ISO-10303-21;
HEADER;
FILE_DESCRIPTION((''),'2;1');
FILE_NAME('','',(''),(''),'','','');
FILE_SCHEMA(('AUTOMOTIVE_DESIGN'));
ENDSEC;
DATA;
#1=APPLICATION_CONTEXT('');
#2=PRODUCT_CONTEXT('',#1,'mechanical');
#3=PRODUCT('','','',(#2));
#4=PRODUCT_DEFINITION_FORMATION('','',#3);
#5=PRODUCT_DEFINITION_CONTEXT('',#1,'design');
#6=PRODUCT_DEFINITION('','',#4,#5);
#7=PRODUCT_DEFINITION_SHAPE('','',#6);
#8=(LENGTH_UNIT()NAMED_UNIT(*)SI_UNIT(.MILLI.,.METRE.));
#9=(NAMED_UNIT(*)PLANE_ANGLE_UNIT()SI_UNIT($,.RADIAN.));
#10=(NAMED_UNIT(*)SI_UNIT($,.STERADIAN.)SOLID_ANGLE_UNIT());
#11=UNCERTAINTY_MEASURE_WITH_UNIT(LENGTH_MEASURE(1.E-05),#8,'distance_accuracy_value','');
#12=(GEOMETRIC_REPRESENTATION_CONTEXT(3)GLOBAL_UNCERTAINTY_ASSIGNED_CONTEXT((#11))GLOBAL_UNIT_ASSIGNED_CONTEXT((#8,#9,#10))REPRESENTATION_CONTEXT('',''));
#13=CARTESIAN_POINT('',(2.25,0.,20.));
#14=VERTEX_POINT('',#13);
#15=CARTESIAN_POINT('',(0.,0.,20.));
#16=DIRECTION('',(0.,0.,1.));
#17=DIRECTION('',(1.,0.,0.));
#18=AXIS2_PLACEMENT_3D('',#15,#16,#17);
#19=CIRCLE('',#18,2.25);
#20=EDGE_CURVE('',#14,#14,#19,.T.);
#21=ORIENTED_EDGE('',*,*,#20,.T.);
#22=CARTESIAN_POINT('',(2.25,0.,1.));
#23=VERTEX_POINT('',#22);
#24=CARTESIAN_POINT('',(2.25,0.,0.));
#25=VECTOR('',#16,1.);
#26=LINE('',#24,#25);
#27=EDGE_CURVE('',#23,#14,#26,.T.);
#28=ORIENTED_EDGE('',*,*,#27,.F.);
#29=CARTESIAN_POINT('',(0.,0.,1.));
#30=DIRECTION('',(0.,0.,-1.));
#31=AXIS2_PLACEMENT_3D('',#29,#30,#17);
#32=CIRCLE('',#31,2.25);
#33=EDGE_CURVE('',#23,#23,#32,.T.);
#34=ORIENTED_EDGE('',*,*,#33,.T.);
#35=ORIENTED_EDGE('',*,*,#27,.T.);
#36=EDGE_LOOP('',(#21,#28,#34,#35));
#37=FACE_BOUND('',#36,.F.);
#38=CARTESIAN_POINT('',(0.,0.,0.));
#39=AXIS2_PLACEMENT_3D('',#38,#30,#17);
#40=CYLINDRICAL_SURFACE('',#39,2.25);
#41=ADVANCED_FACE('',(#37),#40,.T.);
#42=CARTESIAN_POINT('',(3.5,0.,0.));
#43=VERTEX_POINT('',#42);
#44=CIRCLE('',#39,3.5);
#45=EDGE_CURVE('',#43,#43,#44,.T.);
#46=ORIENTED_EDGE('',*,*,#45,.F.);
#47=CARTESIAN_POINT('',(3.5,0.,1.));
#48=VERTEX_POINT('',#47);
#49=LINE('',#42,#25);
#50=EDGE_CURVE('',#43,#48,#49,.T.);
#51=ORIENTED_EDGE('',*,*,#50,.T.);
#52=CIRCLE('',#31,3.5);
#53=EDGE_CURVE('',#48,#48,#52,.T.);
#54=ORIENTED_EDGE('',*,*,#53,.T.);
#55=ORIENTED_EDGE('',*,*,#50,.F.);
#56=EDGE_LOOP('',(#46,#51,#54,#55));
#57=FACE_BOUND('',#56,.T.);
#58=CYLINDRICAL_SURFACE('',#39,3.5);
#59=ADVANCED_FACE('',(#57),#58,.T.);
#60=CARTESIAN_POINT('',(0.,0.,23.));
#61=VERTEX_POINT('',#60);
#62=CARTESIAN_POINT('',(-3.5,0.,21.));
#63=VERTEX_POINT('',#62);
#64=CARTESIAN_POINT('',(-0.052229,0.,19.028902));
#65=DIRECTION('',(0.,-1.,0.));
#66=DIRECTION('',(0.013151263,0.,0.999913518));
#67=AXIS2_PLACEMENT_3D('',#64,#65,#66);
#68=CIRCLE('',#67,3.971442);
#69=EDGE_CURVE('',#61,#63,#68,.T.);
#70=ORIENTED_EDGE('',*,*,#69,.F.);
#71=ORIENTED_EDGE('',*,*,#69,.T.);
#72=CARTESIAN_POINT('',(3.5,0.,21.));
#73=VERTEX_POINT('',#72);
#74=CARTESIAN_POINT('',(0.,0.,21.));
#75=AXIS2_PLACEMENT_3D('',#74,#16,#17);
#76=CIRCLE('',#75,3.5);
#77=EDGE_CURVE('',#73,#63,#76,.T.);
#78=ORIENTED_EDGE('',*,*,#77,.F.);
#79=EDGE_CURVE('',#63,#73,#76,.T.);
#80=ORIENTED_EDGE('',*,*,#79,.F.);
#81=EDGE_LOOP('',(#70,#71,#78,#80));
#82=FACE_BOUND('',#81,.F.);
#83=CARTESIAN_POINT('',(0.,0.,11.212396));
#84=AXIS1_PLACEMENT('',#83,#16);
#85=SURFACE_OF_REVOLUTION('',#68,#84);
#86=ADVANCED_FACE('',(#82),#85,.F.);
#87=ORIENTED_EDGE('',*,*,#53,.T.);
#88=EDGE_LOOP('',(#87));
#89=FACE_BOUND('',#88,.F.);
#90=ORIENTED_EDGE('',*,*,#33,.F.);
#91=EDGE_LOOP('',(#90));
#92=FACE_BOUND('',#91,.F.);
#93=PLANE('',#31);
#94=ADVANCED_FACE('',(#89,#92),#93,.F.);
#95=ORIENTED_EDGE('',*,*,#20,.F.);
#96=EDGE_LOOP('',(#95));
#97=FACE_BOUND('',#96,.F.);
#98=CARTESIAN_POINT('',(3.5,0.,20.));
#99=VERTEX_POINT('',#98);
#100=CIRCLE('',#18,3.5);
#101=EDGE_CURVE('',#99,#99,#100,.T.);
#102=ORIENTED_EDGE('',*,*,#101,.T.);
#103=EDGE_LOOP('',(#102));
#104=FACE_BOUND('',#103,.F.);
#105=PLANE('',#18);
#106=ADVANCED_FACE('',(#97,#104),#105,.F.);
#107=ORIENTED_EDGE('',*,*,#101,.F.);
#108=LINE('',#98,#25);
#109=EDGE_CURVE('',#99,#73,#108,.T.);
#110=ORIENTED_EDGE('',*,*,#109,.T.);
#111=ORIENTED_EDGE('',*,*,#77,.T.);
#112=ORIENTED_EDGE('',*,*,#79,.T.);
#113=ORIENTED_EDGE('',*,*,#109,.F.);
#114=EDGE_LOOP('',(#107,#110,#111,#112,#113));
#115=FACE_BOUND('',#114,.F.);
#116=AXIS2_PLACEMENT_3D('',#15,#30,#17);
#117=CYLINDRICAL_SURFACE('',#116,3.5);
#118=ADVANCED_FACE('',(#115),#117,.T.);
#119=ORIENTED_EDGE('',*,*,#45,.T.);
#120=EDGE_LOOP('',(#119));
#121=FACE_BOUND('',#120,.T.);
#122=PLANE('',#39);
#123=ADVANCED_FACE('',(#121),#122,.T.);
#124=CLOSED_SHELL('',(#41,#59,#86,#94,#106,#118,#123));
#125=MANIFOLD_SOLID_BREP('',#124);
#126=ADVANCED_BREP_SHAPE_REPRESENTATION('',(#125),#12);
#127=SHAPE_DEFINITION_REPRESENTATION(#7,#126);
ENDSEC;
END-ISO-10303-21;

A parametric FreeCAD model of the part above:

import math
import FreeCAD as App
import Part
import Sketcher

V = App.Vector
Q = App.Units.Quantity

doc = App.newDocument("Part")
body = doc.addObject("PartDesign::Body", "Body")

# Sketch on XY plane
sketch1 = doc.addObject("Sketcher::SketchObject", "Sketch")
body.addObject(sketch1)
sketch1.AttachmentSupport = (doc.XY_Plane, [""])
sketch1.MapMode = "FlatFace"
sketch1.addGeometry(Part.Circle(V(0, 0, 0), V(0, 0, 1), 2.25), False)
sketch1.addConstraint([
    Sketcher.Constraint("Coincident", 0, 3, -1, 1),
    Sketcher.Constraint("Diameter", 0, Q("4.5 mm")),
])
pad1 = doc.addObject("PartDesign::Pad", "Pad")
body.addObject(pad1)
pad1.Profile = sketch1
pad1.Length = 20

# Sketch on XY plane
sketch2 = doc.addObject("Sketcher::SketchObject", "Sketch001")
body.addObject(sketch2)
sketch2.AttachmentSupport = (doc.XY_Plane, [""])
sketch2.MapMode = "FlatFace"
sketch2.addGeometry(Part.Circle(V(0, 0, 0), V(0, 0, 1), 3.5), False)
sketch2.addConstraint([
    Sketcher.Constraint("Coincident", 0, 3, -1, 1),
    Sketcher.Constraint("Diameter", 0, Q("7 mm")),
])
pad2 = doc.addObject("PartDesign::Pad", "Pad001")
body.addObject(pad2)
pad2.Profile = sketch2
pad2.Length = 1

# Sketch on XY plane
sketch3 = doc.addObject("Sketcher::SketchObject", "Sketch002")
body.addObject(sketch3)
sketch3.AttachmentSupport = (doc.XY_Plane, [""])
sketch3.MapMode = "FlatFace"
sketch3.AttachmentOffset = App.Placement(V(0, 0, 20), App.Rotation())
sketch3.addGeometry(Part.Circle(V(0, 0, 0), V(0, 0, 1), 3.5), False)
sketch3.addConstraint([
    Sketcher.Constraint("Coincident", 0, 3, -1, 1),
    Sketcher.Constraint("Diameter", 0, Q("7 mm")),
])
pad3 = doc.addObject("PartDesign::Pad", "Pad002")
body.addObject(pad3)
pad3.Profile = sketch3
pad3.Length = 1

# Sketch on XZ plane
sketch4 = doc.addObject("Sketcher::SketchObject", "Sketch003")
body.addObject(sketch4)
sketch4.AttachmentSupport = (doc.XZ_Plane, [""])
sketch4.MapMode = "FlatFace"
sketch4.addGeometry([
    Part.LineSegment(V(0, 20.991329, 0), V(0, 23, 0)),
    Part.ArcOfCircle(Part.Circle(V(-0.052229, 19.028902, 0), V(0, 0, 1), 3.971442), math.radians(89.246466), math.radians(150.243296)),
    Part.LineSegment(V(-3.5, 21, 0), V(0, 20.991329, 0)),
], False)
sketch4.addConstraint([
    Sketcher.Constraint("Coincident", 0, 2, 1, 1),
    Sketcher.Constraint("Coincident", 1, 2, 2, 1),
    Sketcher.Constraint("Coincident", 2, 2, 0, 1),
    Sketcher.Constraint("Vertical", 0),
    Sketcher.Constraint("PointOnObject", 0, 2, -2),
    Sketcher.Constraint("DistanceY", -1, 1, 0, 2, Q("23 mm")),
    Sketcher.Constraint("DistanceY", -1, 1, 1, 2, Q("21 mm")),
    Sketcher.Constraint("DistanceX", 1, 2, -1, 1, Q("3.5 mm")),
    Sketcher.Constraint("Radius", 1, Q("3.971442 mm")),
    Sketcher.Constraint("DistanceY", 0, 1, 0, 2, Q("2.008671 mm")),
])
revolution = doc.addObject("PartDesign::Revolution", "Revolution")
body.addObject(revolution)
revolution.Profile = sketch4
revolution.ReferenceAxis = (sketch4, ["V_Axis"])
revolution.Angle = 360

doc.recompute()
